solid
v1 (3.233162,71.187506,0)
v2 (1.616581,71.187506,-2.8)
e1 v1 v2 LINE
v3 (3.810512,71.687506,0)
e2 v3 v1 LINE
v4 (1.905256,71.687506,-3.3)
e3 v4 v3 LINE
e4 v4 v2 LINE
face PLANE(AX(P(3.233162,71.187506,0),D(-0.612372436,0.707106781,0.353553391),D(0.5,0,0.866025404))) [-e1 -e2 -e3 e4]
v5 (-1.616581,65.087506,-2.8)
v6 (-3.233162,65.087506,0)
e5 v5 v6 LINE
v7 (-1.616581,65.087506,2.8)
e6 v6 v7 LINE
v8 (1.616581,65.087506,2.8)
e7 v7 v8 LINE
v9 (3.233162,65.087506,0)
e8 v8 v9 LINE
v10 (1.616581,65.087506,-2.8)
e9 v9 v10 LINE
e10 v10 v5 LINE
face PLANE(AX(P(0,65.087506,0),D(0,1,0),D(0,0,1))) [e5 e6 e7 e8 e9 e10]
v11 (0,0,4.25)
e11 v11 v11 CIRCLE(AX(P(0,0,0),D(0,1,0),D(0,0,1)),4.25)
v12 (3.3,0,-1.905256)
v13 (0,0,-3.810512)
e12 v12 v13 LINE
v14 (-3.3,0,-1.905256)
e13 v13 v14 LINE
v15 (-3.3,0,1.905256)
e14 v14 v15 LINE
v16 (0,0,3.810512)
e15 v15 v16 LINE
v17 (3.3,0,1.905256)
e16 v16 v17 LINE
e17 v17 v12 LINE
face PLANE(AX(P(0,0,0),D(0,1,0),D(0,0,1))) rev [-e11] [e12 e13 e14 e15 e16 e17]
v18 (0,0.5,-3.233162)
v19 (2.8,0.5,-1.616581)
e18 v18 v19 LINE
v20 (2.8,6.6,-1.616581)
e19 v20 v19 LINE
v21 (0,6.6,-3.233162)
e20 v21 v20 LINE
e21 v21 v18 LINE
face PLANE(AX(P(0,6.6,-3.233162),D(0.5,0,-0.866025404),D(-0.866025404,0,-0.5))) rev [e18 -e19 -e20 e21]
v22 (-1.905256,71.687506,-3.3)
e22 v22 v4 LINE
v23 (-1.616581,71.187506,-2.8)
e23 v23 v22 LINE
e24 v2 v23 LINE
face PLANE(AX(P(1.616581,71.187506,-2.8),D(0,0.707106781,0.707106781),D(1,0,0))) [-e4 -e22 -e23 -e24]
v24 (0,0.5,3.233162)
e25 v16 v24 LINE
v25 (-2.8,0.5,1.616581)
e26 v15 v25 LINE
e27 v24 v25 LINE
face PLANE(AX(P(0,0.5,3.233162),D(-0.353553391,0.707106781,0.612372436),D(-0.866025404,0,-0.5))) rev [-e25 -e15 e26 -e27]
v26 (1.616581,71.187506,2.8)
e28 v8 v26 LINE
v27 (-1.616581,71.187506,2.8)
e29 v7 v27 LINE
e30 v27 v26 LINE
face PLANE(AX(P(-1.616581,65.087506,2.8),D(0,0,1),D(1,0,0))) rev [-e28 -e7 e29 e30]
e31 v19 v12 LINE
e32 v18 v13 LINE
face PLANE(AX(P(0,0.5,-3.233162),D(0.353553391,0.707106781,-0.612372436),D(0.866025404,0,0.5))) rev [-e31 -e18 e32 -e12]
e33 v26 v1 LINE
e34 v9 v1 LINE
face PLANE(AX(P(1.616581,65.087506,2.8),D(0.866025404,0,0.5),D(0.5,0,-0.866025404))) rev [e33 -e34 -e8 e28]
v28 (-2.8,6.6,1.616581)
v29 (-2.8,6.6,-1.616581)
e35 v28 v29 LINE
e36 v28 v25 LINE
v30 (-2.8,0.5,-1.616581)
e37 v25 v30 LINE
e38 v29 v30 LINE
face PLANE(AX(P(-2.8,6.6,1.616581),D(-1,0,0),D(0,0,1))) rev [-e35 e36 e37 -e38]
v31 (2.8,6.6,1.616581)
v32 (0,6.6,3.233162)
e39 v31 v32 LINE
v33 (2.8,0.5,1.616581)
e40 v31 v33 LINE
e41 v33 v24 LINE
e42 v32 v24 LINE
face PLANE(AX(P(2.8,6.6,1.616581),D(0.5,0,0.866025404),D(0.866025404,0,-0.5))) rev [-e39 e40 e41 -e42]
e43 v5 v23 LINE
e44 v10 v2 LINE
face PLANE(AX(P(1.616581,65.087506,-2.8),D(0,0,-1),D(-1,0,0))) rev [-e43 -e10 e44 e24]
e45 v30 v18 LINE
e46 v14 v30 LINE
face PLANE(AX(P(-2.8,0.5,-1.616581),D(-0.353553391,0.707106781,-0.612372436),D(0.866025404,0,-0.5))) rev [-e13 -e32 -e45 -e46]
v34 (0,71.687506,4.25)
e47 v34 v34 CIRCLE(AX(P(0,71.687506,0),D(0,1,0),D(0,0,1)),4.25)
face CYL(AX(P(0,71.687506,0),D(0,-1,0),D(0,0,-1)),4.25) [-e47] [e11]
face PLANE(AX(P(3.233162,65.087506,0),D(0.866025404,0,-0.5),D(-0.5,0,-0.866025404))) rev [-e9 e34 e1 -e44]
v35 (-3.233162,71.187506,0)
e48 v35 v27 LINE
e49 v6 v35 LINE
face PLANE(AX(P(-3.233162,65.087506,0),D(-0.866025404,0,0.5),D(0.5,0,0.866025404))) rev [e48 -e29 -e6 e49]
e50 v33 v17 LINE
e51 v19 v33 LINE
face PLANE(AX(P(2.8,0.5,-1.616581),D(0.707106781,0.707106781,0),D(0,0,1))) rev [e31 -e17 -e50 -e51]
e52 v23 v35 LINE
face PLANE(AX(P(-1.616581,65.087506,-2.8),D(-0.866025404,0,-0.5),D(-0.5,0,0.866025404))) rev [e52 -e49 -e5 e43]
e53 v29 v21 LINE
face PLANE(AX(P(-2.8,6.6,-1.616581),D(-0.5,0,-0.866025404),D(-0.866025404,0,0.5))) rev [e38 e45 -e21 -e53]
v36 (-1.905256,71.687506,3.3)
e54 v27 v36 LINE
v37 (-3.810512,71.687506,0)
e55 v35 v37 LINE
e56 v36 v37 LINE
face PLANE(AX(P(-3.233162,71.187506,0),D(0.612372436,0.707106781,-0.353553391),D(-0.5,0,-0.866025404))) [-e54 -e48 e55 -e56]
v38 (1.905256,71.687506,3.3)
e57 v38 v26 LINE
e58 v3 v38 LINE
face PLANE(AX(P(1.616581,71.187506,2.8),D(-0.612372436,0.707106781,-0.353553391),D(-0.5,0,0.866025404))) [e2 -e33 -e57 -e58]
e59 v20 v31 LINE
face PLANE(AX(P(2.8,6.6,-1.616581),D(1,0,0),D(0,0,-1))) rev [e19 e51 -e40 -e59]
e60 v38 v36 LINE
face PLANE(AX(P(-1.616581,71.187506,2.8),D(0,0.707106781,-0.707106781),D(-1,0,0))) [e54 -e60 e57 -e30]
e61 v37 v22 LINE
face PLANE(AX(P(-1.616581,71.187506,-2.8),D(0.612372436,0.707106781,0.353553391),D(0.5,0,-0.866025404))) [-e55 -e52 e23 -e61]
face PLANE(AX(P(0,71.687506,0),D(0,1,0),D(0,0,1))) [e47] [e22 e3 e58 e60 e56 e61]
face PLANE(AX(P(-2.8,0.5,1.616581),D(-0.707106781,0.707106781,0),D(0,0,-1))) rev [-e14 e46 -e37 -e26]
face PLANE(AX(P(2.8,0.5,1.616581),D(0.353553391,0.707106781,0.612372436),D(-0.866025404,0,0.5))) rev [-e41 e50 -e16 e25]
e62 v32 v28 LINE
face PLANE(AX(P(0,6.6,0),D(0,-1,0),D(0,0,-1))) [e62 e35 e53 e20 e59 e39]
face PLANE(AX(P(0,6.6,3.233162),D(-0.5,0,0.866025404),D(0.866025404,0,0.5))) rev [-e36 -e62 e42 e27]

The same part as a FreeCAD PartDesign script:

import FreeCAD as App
import Part
import Sketcher
from FreeCAD import Vector
Q = App.Units.Quantity


def edges_at(feature, points):
    """Names of the edges that pass closest to the given points."""
    edges = feature.Shape.Edges
    near = lambda p: min(range(len(edges)), key=lambda i: edges[i].distToShape(Part.Vertex(*p))[0])
    return sorted({f"Edge{near(p) + 1}" for p in points})

doc = App.newDocument("Part")
params = doc.addObject("Spreadsheet::Sheet", "Params")
for row, (alias, value) in enumerate([
    ("sketch1_diameter", "8.5 mm"),
    ("pad1_length", "71.687506 mm"),
    ("pocket1_length", "6.6 mm"),
    ("chamfer_size", "0.5 mm"),
    ("pocket2_length", "6.6 mm"),
    ("chamfer2_size", "0.5 mm"),
], start=1):
    params.set(f"A{row}", alias)
    params.set(f"B{row}", "=" + value)
    params.setAlias(f"B{row}", alias)

body = doc.addObject("PartDesign::Body", "Body")

# Sketch on XZ plane
sketch1 = doc.addObject("Sketcher::SketchObject", "Sketch")
body.addObject(sketch1)
sketch1.AttachmentSupport = (doc.XZ_Plane, [""])
sketch1.MapMode = "FlatFace"
sketch1.addGeometry(Part.Circle(Vector(0, 0, 0), Vector(0, 0, 1), 4.2), False)
sketch1.addConstraint([
    Sketcher.Constraint("Coincident", 0, 3, -1, 1),
    Sketcher.Constraint("Diameter", 0, 8.5),
])
sketch1.setExpression("Constraints[1]", "Params.sketch1_diameter")
pad1 = doc.addObject("PartDesign::Pad", "Pad")
body.addObject(pad1)
pad1.Profile = sketch1
pad1.setExpression("Length", "Params.pad1_length")
pad1.Reversed = True

# Sketch on XZ plane
sketch2 = doc.addObject("Sketcher::SketchObject", "Sketch001")
body.addObject(sketch2)
sketch2.AttachmentSupport = (doc.XZ_Plane, [""])
sketch2.MapMode = "FlatFace"
sketch2.AttachmentOffset = App.Placement(Vector(0, 0, -71.687506), App.Rotation())
sketch2.addGeometry([
    Part.LineSegment(Vector(1.6, -2.8, 0), Vector(-1.6, -2.8, 0)),  # 0
    Part.LineSegment(Vector(-1.6, -2.8, 0), Vector(-3.2, 0, 0)),  # 1
    Part.LineSegment(Vector(-3.2, 0, 0), Vector(-1.6, 2.8, 0)),  # 2
    Part.LineSegment(Vector(-1.6, 2.8, 0), Vector(1.6, 2.8, 0)),  # 3
    Part.LineSegment(Vector(1.6, 2.8, 0), Vector(3.2, 0, 0)),  # 4
    Part.LineSegment(Vector(3.2, 0, 0), Vector(1.6, -2.8, 0)),  # 5
], False)
sketch2.addConstraint([
    Sketcher.Constraint("Coincident", 0, 2, 1, 1),
    Sketcher.Constraint("Coincident", 1, 2, 2, 1),
    Sketcher.Constraint("Coincident", 2, 2, 3, 1),
    Sketcher.Constraint("Coincident", 3, 2, 4, 1),
    Sketcher.Constraint("Coincident", 4, 2, 5, 1),
    Sketcher.Constraint("Coincident", 5, 2, 0, 1),
    Sketcher.Constraint("Horizontal", 0),
    Sketcher.Constraint("Horizontal", 3),
    Sketcher.Constraint("Symmetric", 0, 2, 3, 2, -1, 1),
    Sketcher.Constraint("Symmetric", 1, 2, 4, 2, -1, 1),
    Sketcher.Constraint("PointOnObject", 1, 2, -1),
    Sketcher.Constraint("Parallel", 2, 5),
    Sketcher.Constraint("Vertical", 0, 2, 2, 2),
    Sketcher.Constraint("Angle", 1, Q("120 deg")),
    Sketcher.Constraint("DistanceY", 0, 2, -1, 1, 2.8),
    Sketcher.Constraint("DistanceX", 0, 2, 0, 1, 3.233162),
])
pocket1 = doc.addObject("PartDesign::Pocket", "Pocket")
body.addObject(pocket1)
pocket1.Profile = sketch2
pocket1.setExpression("Length", "Params.pocket1_length")
pocket1.Reversed = True
doc.recompute()

chamfer = doc.addObject("PartDesign::Chamfer", "Chamfer")
body.addObject(chamfer)
chamfer.Base = (pocket1, edges_at(pocket1, [
    (2.425, 71.688, -1.4),
    (0, 71.688, -2.8),
    (-2.425, 71.688, -1.4),
    (-2.425, 71.688, 1.4),
    (0, 71.688, 2.8),
    (2.425, 71.688, 1.4),
]))
chamfer.setExpression("Size", "Params.chamfer_size")

# Sketch on XZ plane
sketch3 = doc.addObject("Sketcher::SketchObject", "Sketch002")
body.addObject(sketch3)
sketch3.AttachmentSupport = (doc.XZ_Plane, [""])
sketch3.MapMode = "FlatFace"
sketch3.addGeometry([
    Part.LineSegment(Vector(0, 3.2, 0), Vector(-2.8, 1.6, 0)),  # 0
    Part.LineSegment(Vector(-2.8, 1.6, 0), Vector(-2.8, -1.6, 0)),  # 1
    Part.LineSegment(Vector(-2.8, -1.6, 0), Vector(0, -3.2, 0)),  # 2
    Part.LineSegment(Vector(0, -3.2, 0), Vector(2.8, -1.6, 0)),  # 3
    Part.LineSegment(Vector(2.8, -1.6, 0), Vector(2.8, 1.6, 0)),  # 4
    Part.LineSegment(Vector(2.8, 1.6, 0), Vector(0, 3.2, 0)),  # 5
], False)
sketch3.addConstraint([
    Sketcher.Constraint("Coincident", 0, 2, 1, 1),
    Sketcher.Constraint("Coincident", 1, 2, 2, 1),
    Sketcher.Constraint("Coincident", 2, 2, 3, 1),
    Sketcher.Constraint("Coincident", 3, 2, 4, 1),
    Sketcher.Constraint("Coincident", 4, 2, 5, 1),
    Sketcher.Constraint("Coincident", 5, 2, 0, 1),
    Sketcher.Constraint("Vertical", 1),
    Sketcher.Constraint("Vertical", 4),
    Sketcher.Constraint("Symmetric", 0, 2, 3, 2, -1, 1),
    Sketcher.Constraint("Symmetric", 2, 2, 5, 2, -1, 1),
    Sketcher.Constraint("PointOnObject", 2, 2, -2),
    Sketcher.Constraint("Parallel", 2, 5),
    Sketcher.Constraint("Horizontal", 1, 2, 3, 2),
    Sketcher.Constraint("Angle", 0, Q("-150 deg")),
    Sketcher.Constraint("DistanceX", 0, 2, -1, 1, 2.8),
    Sketcher.Constraint("DistanceY", 1, 2, 1, 1, 3.233162),
])
pocket2 = doc.addObject("PartDesign::Pocket", "Pocket001")
body.addObject(pocket2)
pocket2.Profile = sketch3
pocket2.setExpression("Length", "Params.pocket2_length")
doc.recompute()

chamfer2 = doc.addObject("PartDesign::Chamfer", "Chamfer001")
body.addObject(chamfer2)
chamfer2.Base = (pocket2, edges_at(pocket2, [
    (1.4, 0, 2.425),
    (-1.4, 0, 2.425),
    (-2.8, 0, 0),
    (-1.4, 0, -2.425),
    (1.4, 0, -2.425),
    (2.8, 0, 0),
]))
chamfer2.setExpression("Size", "Params.chamfer2_size")

doc.recompute()
